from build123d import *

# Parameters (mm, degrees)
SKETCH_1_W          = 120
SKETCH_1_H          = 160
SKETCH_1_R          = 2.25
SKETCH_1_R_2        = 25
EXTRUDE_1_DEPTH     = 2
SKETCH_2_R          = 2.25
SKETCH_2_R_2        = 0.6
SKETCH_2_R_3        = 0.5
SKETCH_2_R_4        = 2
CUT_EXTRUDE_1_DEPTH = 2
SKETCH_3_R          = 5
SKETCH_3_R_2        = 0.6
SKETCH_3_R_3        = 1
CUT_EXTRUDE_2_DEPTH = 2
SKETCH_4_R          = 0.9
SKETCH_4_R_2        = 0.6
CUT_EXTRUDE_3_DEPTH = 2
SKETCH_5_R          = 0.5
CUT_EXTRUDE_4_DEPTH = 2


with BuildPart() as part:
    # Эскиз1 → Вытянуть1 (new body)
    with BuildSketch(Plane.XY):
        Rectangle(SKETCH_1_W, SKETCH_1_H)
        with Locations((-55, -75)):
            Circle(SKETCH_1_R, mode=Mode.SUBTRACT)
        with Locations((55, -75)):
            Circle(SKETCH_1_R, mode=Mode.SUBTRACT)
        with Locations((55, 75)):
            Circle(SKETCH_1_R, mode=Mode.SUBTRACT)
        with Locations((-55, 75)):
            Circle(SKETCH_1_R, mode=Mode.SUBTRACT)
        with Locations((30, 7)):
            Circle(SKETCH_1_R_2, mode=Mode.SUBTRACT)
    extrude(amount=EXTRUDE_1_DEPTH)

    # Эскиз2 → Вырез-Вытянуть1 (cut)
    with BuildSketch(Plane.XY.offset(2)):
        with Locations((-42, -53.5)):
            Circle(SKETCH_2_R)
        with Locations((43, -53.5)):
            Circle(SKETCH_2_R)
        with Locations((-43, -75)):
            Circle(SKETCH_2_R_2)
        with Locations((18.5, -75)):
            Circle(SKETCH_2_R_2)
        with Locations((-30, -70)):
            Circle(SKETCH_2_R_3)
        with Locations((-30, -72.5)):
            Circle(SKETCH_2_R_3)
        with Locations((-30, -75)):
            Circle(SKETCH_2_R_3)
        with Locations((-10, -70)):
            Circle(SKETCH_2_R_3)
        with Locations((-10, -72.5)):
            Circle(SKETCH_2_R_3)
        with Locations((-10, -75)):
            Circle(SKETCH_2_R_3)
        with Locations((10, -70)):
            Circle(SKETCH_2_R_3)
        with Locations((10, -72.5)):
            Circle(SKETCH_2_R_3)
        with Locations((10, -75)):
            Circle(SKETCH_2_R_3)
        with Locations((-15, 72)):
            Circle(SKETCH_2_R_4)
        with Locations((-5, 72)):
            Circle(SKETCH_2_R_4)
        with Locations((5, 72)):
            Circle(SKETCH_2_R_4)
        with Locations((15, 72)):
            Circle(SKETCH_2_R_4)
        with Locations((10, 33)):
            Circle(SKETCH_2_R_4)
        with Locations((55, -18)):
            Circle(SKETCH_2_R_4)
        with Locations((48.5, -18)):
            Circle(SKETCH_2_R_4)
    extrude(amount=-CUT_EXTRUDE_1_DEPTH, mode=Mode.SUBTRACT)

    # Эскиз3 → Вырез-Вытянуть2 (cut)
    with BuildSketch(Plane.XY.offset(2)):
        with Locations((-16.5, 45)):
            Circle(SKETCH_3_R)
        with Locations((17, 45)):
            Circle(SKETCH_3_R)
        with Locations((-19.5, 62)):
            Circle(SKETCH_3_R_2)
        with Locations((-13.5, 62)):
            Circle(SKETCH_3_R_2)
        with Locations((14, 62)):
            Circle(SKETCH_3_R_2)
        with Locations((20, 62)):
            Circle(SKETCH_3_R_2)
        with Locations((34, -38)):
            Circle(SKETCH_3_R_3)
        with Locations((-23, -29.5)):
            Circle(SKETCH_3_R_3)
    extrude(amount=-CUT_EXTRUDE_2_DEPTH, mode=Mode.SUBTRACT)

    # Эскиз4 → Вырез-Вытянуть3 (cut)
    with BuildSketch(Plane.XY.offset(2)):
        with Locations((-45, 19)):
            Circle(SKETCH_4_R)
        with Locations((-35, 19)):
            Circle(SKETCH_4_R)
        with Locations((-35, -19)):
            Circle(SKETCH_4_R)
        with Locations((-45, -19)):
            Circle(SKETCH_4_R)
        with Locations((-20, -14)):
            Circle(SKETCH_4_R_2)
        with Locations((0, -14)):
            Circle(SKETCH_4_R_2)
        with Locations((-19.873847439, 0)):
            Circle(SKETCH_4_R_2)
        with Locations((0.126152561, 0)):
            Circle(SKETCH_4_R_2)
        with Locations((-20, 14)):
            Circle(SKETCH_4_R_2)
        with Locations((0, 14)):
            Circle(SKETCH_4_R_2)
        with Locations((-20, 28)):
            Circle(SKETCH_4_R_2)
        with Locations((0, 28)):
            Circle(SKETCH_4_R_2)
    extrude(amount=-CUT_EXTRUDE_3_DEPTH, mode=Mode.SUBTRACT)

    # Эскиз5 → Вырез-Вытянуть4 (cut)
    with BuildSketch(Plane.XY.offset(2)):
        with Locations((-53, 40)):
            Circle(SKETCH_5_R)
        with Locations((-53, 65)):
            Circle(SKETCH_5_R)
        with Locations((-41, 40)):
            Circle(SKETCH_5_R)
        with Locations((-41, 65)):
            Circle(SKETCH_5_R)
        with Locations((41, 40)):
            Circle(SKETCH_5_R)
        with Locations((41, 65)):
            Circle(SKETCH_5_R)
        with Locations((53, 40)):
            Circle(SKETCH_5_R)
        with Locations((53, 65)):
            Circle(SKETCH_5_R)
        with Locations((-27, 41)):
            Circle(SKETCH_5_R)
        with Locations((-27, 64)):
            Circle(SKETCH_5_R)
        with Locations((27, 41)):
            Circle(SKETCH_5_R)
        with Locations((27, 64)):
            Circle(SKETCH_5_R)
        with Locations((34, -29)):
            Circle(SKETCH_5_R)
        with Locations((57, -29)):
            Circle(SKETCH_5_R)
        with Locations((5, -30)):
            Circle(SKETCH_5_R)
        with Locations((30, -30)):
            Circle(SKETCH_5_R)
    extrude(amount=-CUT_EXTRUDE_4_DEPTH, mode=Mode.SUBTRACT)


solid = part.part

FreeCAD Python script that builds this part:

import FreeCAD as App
import Part
import Sketcher

V = App.Vector
Q = App.Units.Quantity


def add_polygon(sketch, points):
    """Adds a closed chain of lines whose ends are joined by coincident constraints."""
    first, n = sketch.GeometryCount, len(points)
    for a, b in zip(points, points[1:] + points[:1]):
        sketch.addGeometry(Part.LineSegment(App.Vector(*a, 0), App.Vector(*b, 0)), False)
    for i in range(n):
        sketch.addConstraint(Sketcher.Constraint("Coincident", first + i, 2, first + (i + 1) % n, 1))

doc = App.newDocument("Part")
body = doc.addObject("PartDesign::Body", "Body")

# Sketch on XY plane
sketch1 = body.newObject("Sketcher::SketchObject", "Sketch")
sketch1.AttachmentSupport = (doc.getObject("XY_Plane"), [""])
sketch1.MapMode = "FlatFace"
add_polygon(sketch1, [(-60, 80), (-60, -80), (60, -80), (60, 80)])  # lines 0-3
sketch1.addGeometry(Part.Circle(V(-55, -75, 0), V(0, 0, 1), 2.25), False)  # 4
sketch1.addGeometry(Part.Circle(V(55, -75, 0), V(0, 0, 1), 2.25), False)  # 5
sketch1.addGeometry(Part.Circle(V(-55, 75, 0), V(0, 0, 1), 2.25), False)  # 6
sketch1.addGeometry(Part.Circle(V(30, 7, 0), V(0, 0, 1), 25), False)  # 7
sketch1.addGeometry(Part.Circle(V(55, 75, 0), V(0, 0, 1), 2.25), False)  # 8
sketch1.addConstraint([
    Sketcher.Constraint("Vertical", 0),
    Sketcher.Constraint("Horizontal", 1),
    Sketcher.Constraint("Vertical", 2),
    Sketcher.Constraint("Horizontal", 3),
    Sketcher.Constraint("Equal", 4, 5),
    Sketcher.Constraint("Equal", 5, 6),
    Sketcher.Constraint("Equal", 6, 8),
    Sketcher.Constraint("Symmetric", 5, 3, 6, 3, -1, 1),
    Sketcher.Constraint("Symmetric", 4, 3, 8, 3, -1, 1),
    Sketcher.Constraint("Symmetric", 0, 2, 2, 2, -1, 1),
    Sketcher.Constraint("Symmetric", 4, 3, 5, 3, -2),
    Sketcher.Constraint("Diameter", 7, Q("50 mm")),
    Sketcher.Constraint("Diameter", 4, Q("4.5 mm")),
    Sketcher.Constraint("DistanceX", 1, 1, 1, 2, Q("120 mm")),
    Sketcher.Constraint("DistanceY", 0, 2, 0, 1, Q("160 mm")),
    Sketcher.Constraint("DistanceX", 4, 3, -1, 1, Q("55 mm")),
    Sketcher.Constraint("DistanceY", 4, 3, -1, 1, Q("75 mm")),
    Sketcher.Constraint("DistanceX", -1, 1, 7, 3, Q("30 mm")),
    Sketcher.Constraint("DistanceY", -1, 1, 7, 3, Q("7 mm")),
])
pad1 = body.newObject("PartDesign::Pad", "Pad")
pad1.Profile = sketch1
pad1.Length = 2

# Sketch on XY plane
sketch2 = body.newObject("Sketcher::SketchObject", "Sketch001")
sketch2.AttachmentSupport = (doc.getObject("XY_Plane"), [""])
sketch2.MapMode = "FlatFace"
sketch2.AttachmentOffset = App.Placement(V(0, 0, 2), App.Rotation())
sketch2.addGeometry([
    Part.Circle(V(-42, -53.5, 0), V(0, 0, 1), 2.25),  # 0
    Part.Circle(V(43, -53.5, 0), V(0, 0, 1), 2.25),  # 1
    Part.Circle(V(-43, -75, 0), V(0, 0, 1), 0.6),  # 2
    Part.Circle(V(18.5, -75, 0), V(0, 0, 1), 0.6),  # 3
    Part.Circle(V(-30, -70, 0), V(0, 0, 1), 0.5),  # 4
    Part.Circle(V(-30, -72.5, 0), V(0, 0, 1), 0.5),  # 5
    Part.Circle(V(-30, -75, 0), V(0, 0, 1), 0.5),  # 6
    Part.Circle(V(-10, -70, 0), V(0, 0, 1), 0.5),  # 7
    Part.Circle(V(-10, -72.5, 0), V(0, 0, 1), 0.5),  # 8
    Part.Circle(V(-10, -75, 0), V(0, 0, 1), 0.5),  # 9
    Part.Circle(V(10, -70, 0), V(0, 0, 1), 0.5),  # 10
    Part.Circle(V(10, -72.5, 0), V(0, 0, 1), 0.5),  # 11
    Part.Circle(V(10, -75, 0), V(0, 0, 1), 0.5),  # 12
    Part.Circle(V(-15, 72, 0), V(0, 0, 1), 2),  # 13
    Part.Circle(V(-5, 72, 0), V(0, 0, 1), 2),  # 14
    Part.Circle(V(5, 72, 0), V(0, 0, 1), 2),  # 15
    Part.Circle(V(15, 72, 0), V(0, 0, 1), 2),  # 16
    Part.Circle(V(10, 33, 0), V(0, 0, 1), 2),  # 17
    Part.Circle(V(55, -18, 0), V(0, 0, 1), 2),  # 18
    Part.Circle(V(48.5, -18, 0), V(0, 0, 1), 2),  # 19
], False)
sketch2.addConstraint([
    Sketcher.Constraint("Equal", 0, 1),
    Sketcher.Constraint("Equal", 2, 3),
    Sketcher.Constraint("Equal", 4, 5),
    Sketcher.Constraint("Equal", 5, 6),
    Sketcher.Constraint("Equal", 6, 7),
    Sketcher.Constraint("Equal", 7, 8),
    Sketcher.Constraint("Equal", 8, 9),
    Sketcher.Constraint("Equal", 9, 10),
    Sketcher.Constraint("Equal", 10, 11),
    Sketcher.Constraint("Equal", 11, 12),
    Sketcher.Constraint("Equal", 13, 14),
    Sketcher.Constraint("Equal", 14, 15),
    Sketcher.Constraint("Equal", 15, 16),
    Sketcher.Constraint("Equal", 16, 17),
    Sketcher.Constraint("Equal", 17, 18),
    Sketcher.Constraint("Equal", 18, 19),
    Sketcher.Constraint("Symmetric", 7, 3, 10, 3, -2),
    Sketcher.Constraint("Symmetric", 8, 3, 11, 3, -2),
    Sketcher.Constraint("Symmetric", 9, 3, 12, 3, -2),
    Sketcher.Constraint("Symmetric", 14, 3, 15, 3, -2),
    Sketcher.Constraint("Symmetric", 13, 3, 16, 3, -2),
    Sketcher.Constraint("Horizontal", 0, 3, 1, 3),
    Sketcher.Constraint("Horizontal", 2, 3, 3, 3),
    Sketcher.Constraint("Horizontal", 3, 3, 6, 3),
    Sketcher.Constraint("Horizontal", 4, 3, 7, 3),
    Sketcher.Constraint("Horizontal", 5, 3, 8, 3),
    Sketcher.Constraint("Horizontal", 6, 3, 9, 3),
    Sketcher.Constraint("Horizontal", 13, 3, 14, 3),
    Sketcher.Constraint("Horizontal", 18, 3, 19, 3),
    Sketcher.Constraint("Vertical", 4, 3, 5, 3),
    Sketcher.Constraint("Vertical", 5, 3, 6, 3),
    Sketcher.Constraint("Vertical", 7, 3, 8, 3),
    Sketcher.Constraint("Vertical", 8, 3, 9, 3),
    Sketcher.Constraint("Vertical", 12, 3, 17, 3),
    Sketcher.Constraint("Diameter", 4, Q("1 mm")),
    Sketcher.Constraint("Diameter", 13, Q("4 mm")),
    Sketcher.Constraint("Diameter", 0, Q("4.5 mm")),
    Sketcher.Constraint("Diameter", 2, Q("1.2 mm")),
    Sketcher.Constraint("DistanceX", 0, 3, -1, 1, Q("42 mm")),
    Sketcher.Constraint("DistanceX", -1, 1, 1, 3, Q("43 mm")),
    Sketcher.Constraint("DistanceX", 2, 3, -1, 1, Q("43 mm")),
    Sketcher.Constraint("DistanceY", 2, 3, -1, 1, Q("75 mm")),
    Sketcher.Constraint("DistanceX", 4, 3, -1, 1, Q("30 mm")),
    Sketcher.Constraint("DistanceY", 4, 3, -1, 1, Q("70 mm")),
    Sketcher.Constraint("DistanceX", 7, 3, -1, 1, Q("10 mm")),
    Sketcher.Constraint("DistanceX", 13, 3, -1, 1, Q("15 mm")),
    Sketcher.Constraint("DistanceY", -1, 1, 13, 3, Q("72 mm")),
    Sketcher.Constraint("DistanceX", 14, 3, -1, 1, Q("5 mm")),
    Sketcher.Constraint("DistanceY", -1, 1, 17, 3, Q("33 mm")),
    Sketcher.Constraint("DistanceX", -1, 1, 18, 3, Q("55 mm")),
    Sketcher.Constraint("DistanceY", 18, 3, -1, 1, Q("18 mm")),
    Sketcher.Constraint("DistanceY", 5, 3, 0, 3, Q("19 mm")),
    Sketcher.Constraint("DistanceX", 3, 3, 19, 3, Q("30 mm")),
    Sketcher.Constraint("DistanceY", 0, 3, -1, 1, Q("53.5 mm")),
    Sketcher.Constraint("DistanceX", -1, 1, 3, 3, Q("18.5 mm")),
])
pocket1 = body.newObject("PartDesign::Pocket", "Pocket")
pocket1.Profile = sketch2
pocket1.Length = 2

# Sketch on XY plane
sketch3 = body.newObject("Sketcher::SketchObject", "Sketch002")
sketch3.AttachmentSupport = (doc.getObject("XY_Plane"), [""])
sketch3.MapMode = "FlatFace"
sketch3.AttachmentOffset = App.Placement(V(0, 0, 2), App.Rotation())
sketch3.addGeometry([
    Part.Circle(V(-16.5, 45, 0), V(0, 0, 1), 5),  # 0
    Part.Circle(V(17, 45, 0), V(0, 0, 1), 5),  # 1
    Part.Circle(V(-19.5, 62, 0), V(0, 0, 1), 0.6),  # 2
    Part.Circle(V(-13.5, 62, 0), V(0, 0, 1), 0.6),  # 3
    Part.Circle(V(14, 62, 0), V(0, 0, 1), 0.6),  # 4
    Part.Circle(V(20, 62, 0), V(0, 0, 1), 0.6),  # 5
    Part.Circle(V(34, -38, 0), V(0, 0, 1), 1),  # 6
    Part.Circle(V(-23, -29.5, 0), V(0, 0, 1), 1),  # 7
], False)
sketch3.addConstraint([
    Sketcher.Constraint("Equal", 0, 1),
    Sketcher.Constraint("Equal", 2, 3),
    Sketcher.Constraint("Equal", 3, 4),
    Sketcher.Constraint("Equal", 4, 5),
    Sketcher.Constraint("Equal", 6, 7),
    Sketcher.Constraint("Horizontal", 0, 3, 1, 3),
    Sketcher.Constraint("Horizontal", 2, 3, 3, 3),
    Sketcher.Constraint("Horizontal", 3, 3, 4, 3),
    Sketcher.Constraint("Horizontal", 4, 3, 5, 3),
    Sketcher.Constraint("Diameter", 0, Q("10 mm")),
    Sketcher.Constraint("Diameter", 6, Q("2 mm")),
    Sketcher.Constraint("Diameter", 2, Q("1.2 mm")),
    Sketcher.Constraint("DistanceY", -1, 1, 0, 3, Q("45 mm")),
    Sketcher.Constraint("DistanceX", -1, 1, 1, 3, Q("17 mm")),
    Sketcher.Constraint("DistanceY", -1, 1, 2, 3, Q("62 mm")),
    Sketcher.Constraint("DistanceX", -1, 1, 4, 3, Q("14 mm")),
    Sketcher.Constraint("DistanceX", -1, 1, 5, 3, Q("20 mm")),
    Sketcher.Constraint("DistanceX", -1, 1, 6, 3, Q("34 mm")),
    Sketcher.Constraint("DistanceY", 6, 3, -1, 1, Q("38 mm")),
    Sketcher.Constraint("DistanceX", 7, 3, -1, 1, Q("23 mm")),
    Sketcher.Constraint("DistanceX", 2, 3, 0, 3, Q("3 mm")),
    Sketcher.Constraint("DistanceX", 2, 3, 3, 3, Q("6 mm")),
    Sketcher.Constraint("DistanceX", 0, 3, -1, 1, Q("16.5 mm")),
    Sketcher.Constraint("DistanceY", 7, 3, -1, 1, Q("29.5 mm")),
])
pocket2 = body.newObject("PartDesign::Pocket", "Pocket001")
pocket2.Profile = sketch3
pocket2.Length = 2

# Sketch on XY plane
sketch4 = body.newObject("Sketcher::SketchObject", "Sketch003")
sketch4.AttachmentSupport = (doc.getObject("XY_Plane"), [""])
sketch4.MapMode = "FlatFace"
sketch4.AttachmentOffset = App.Placement(V(0, 0, 2), App.Rotation())
sketch4.addGeometry([
    Part.Circle(V(-45, 19, 0), V(0, 0, 1), 0.9),  # 0
    Part.Circle(V(-35, 19, 0), V(0, 0, 1), 0.9),  # 1
    Part.Circle(V(-35, -19, 0), V(0, 0, 1), 0.9),  # 2
    Part.Circle(V(-45, -19, 0), V(0, 0, 1), 0.9),  # 3
    Part.Circle(V(-20, -14, 0), V(0, 0, 1), 0.6),  # 4
    Part.Circle(V(0, -14, 0), V(0, 0, 1), 0.6),  # 5
    Part.Circle(V(-19.873847, 0, 0), V(0, 0, 1), 0.6),  # 6
    Part.Circle(V(0.126153, 0, 0), V(0, 0, 1), 0.6),  # 7
    Part.Circle(V(-20, 14, 0), V(0, 0, 1), 0.6),  # 8
    Part.Circle(V(0, 14, 0), V(0, 0, 1), 0.6),  # 9
    Part.Circle(V(-20, 28, 0), V(0, 0, 1), 0.6),  # 10
    Part.Circle(V(0, 28, 0), V(0, 0, 1), 0.6),  # 11
], False)
sketch4.addConstraint([
    Sketcher.Constraint("Equal", 0, 1),
    Sketcher.Constraint("Equal", 1, 2),
    Sketcher.Constraint("Equal", 2, 3),
    Sketcher.Constraint("Equal", 4, 5),
    Sketcher.Constraint("Equal", 5, 6),
    Sketcher.Constraint("Equal", 6, 7),
    Sketcher.Constraint("Equal", 7, 8),
    Sketcher.Constraint("Equal", 8, 9),
    Sketcher.Constraint("Equal", 9, 10),
    Sketcher.Constraint("Equal", 10, 11),
    Sketcher.Constraint("Symmetric", 5, 3, 9, 3, -1, 1),
    Sketcher.Constraint("Symmetric", 1, 3, 2, 3, -1),
    Sketcher.Constraint("Symmetric", 0, 3, 3, 3, -1),
    Sketcher.Constraint("Symmetric", 4, 3, 8, 3, -1),
    Sketcher.Constraint("PointOnObject", 5, 3, -2),
    Sketcher.Constraint("PointOnObject", 6, 3, -1),
    Sketcher.Constraint("PointOnObject", 7, 3, -1),
    Sketcher.Constraint("PointOnObject", 11, 3, -2),
    Sketcher.Constraint("Horizontal", 0, 3, 1, 3),
    Sketcher.Constraint("Horizontal", 4, 3, 5, 3),
    Sketcher.Constraint("Horizontal", 10, 3, 11, 3),
    Sketcher.Constraint("Vertical", 8, 3, 10, 3),
    Sketcher.Constraint("Diameter", 0, Q("1.8 mm")),
    Sketcher.Constraint("Diameter", 4, Q("1.2 mm")),
    Sketcher.Constraint("DistanceX", 0, 3, -1, 1, Q("45 mm")),
    Sketcher.Constraint("DistanceY", -1, 1, 0, 3, Q("19 mm")),
    Sketcher.Constraint("DistanceX", 1, 3, -1, 1, Q("35 mm")),
    Sketcher.Constraint("DistanceX", 4, 3, -1, 1, Q("20 mm")),
    Sketcher.Constraint("DistanceY", 4, 3, -1, 1, Q("14 mm")),
    Sketcher.Constraint("DistanceY", -1, 1, 10, 3, Q("28 mm")),
    Sketcher.Constraint("DistanceX", 6, 3, 7, 3, Q("20 mm")),
    Sketcher.Constraint("DistanceX", 6, 3, -1, 1, Q("19.873847 mm")),
])
pocket3 = body.newObject("PartDesign::Pocket", "Pocket002")
pocket3.Profile = sketch4
pocket3.Length = 2

# Sketch on XY plane
sketch5 = body.newObject("Sketcher::SketchObject", "Sketch004")
sketch5.AttachmentSupport = (doc.getObject("XY_Plane"), [""])
sketch5.MapMode = "FlatFace"
sketch5.AttachmentOffset = App.Placement(V(0, 0, 2), App.Rotation())
sketch5.addGeometry([
    Part.Circle(V(-53, 40, 0), V(0, 0, 1), 0.5),  # 0
    Part.Circle(V(-53, 65, 0), V(0, 0, 1), 0.5),  # 1
    Part.Circle(V(-41, 40, 0), V(0, 0, 1), 0.5),  # 2
    Part.Circle(V(-41, 65, 0), V(0, 0, 1), 0.5),  # 3
    Part.Circle(V(41, 40, 0), V(0, 0, 1), 0.5),  # 4
    Part.Circle(V(41, 65, 0), V(0, 0, 1), 0.5),  # 5
    Part.Circle(V(53, 40, 0), V(0, 0, 1), 0.5),  # 6
    Part.Circle(V(53, 65, 0), V(0, 0, 1), 0.5),  # 7
    Part.Circle(V(-27, 41, 0), V(0, 0, 1), 0.5),  # 8
    Part.Circle(V(-27, 64, 0), V(0, 0, 1), 0.5),  # 9
    Part.Circle(V(27, 41, 0), V(0, 0, 1), 0.5),  # 10
    Part.Circle(V(27, 64, 0), V(0, 0, 1), 0.5),  # 11
    Part.Circle(V(34, -29, 0), V(0, 0, 1), 0.5),  # 12
    Part.Circle(V(57, -29, 0), V(0, 0, 1), 0.5),  # 13
    Part.Circle(V(5, -30, 0), V(0, 0, 1), 0.5),  # 14
    Part.Circle(V(30, -30, 0), V(0, 0, 1), 0.5),  # 15
], False)
sketch5.addConstraint([
    Sketcher.Constraint("Equal", 0, 1),
    Sketcher.Constraint("Equal", 1, 2),
    Sketcher.Constraint("Equal", 2, 3),
    Sketcher.Constraint("Equal", 3, 4),
    Sketcher.Constraint("Equal", 4, 5),
    Sketcher.Constraint("Equal", 5, 6),
    Sketcher.Constraint("Equal", 6, 7),
    Sketcher.Constraint("Equal", 7, 8),
    Sketcher.Constraint("Equal", 8, 9),
    Sketcher.Constraint("Equal", 9, 10),
    Sketcher.Constraint("Equal", 10, 11),
    Sketcher.Constraint("Equal", 11, 12),
    Sketcher.Constraint("Equal", 12, 13),
    Sketcher.Constraint("Equal", 13, 14),
    Sketcher.Constraint("Equal", 14, 15),
    Sketcher.Constraint("Symmetric", 2, 3, 4, 3, -2),
    Sketcher.Constraint("Symmetric", 3, 3, 5, 3, -2),
    Sketcher.Constraint("Symmetric", 0, 3, 6, 3, -2),
    Sketcher.Constraint("Symmetric", 1, 3, 7, 3, -2),
    Sketcher.Constraint("Symmetric", 8, 3, 10, 3, -2),
    Sketcher.Constraint("Symmetric", 9, 3, 11, 3, -2),
    Sketcher.Constraint("Horizontal", 0, 3, 2, 3),
    Sketcher.Constraint("Horizontal", 1, 3, 3, 3),
    Sketcher.Constraint("Horizontal", 12, 3, 13, 3),
    Sketcher.Constraint("Horizontal", 14, 3, 15, 3),
    Sketcher.Constraint("Vertical", 0, 3, 1, 3),
    Sketcher.Constraint("Vertical", 2, 3, 3, 3),
    Sketcher.Constraint("Vertical", 8, 3, 9, 3),
    Sketcher.Constraint("Diameter", 0, Q("1 mm")),
    Sketcher.Constraint("DistanceX", 0, 3, -1, 1, Q("53 mm")),
    Sketcher.Constraint("DistanceY", -1, 1, 0, 3, Q("40 mm")),
    Sketcher.Constraint("DistanceY", -1, 1, 1, 3, Q("65 mm")),
    Sketcher.Constraint("DistanceX", 2, 3, -1, 1, Q("41 mm")),
    Sketcher.Constraint("DistanceX", 8, 3, -1, 1, Q("27 mm")),
    Sketcher.Constraint("DistanceY", -1, 1, 8, 3, Q("41 mm")),
    Sketcher.Constraint("DistanceY", -1, 1, 9, 3, Q("64 mm")),
    Sketcher.Constraint("DistanceX", -1, 1, 12, 3, Q("34 mm")),
    Sketcher.Constraint("DistanceY", 12, 3, -1, 1, Q("29 mm")),
    Sketcher.Constraint("DistanceX", -1, 1, 13, 3, Q("57 mm")),
    Sketcher.Constraint("DistanceX", -1, 1, 14, 3, Q("5 mm")),
    Sketcher.Constraint("DistanceY", 14, 3, -1, 1, Q("30 mm")),
    Sketcher.Constraint("DistanceX", -1, 1, 15, 3, Q("30 mm")),
])
pocket4 = body.newObject("PartDesign::Pocket", "Pocket003")
pocket4.Profile = sketch5
pocket4.Length = 2

doc.recompute()
